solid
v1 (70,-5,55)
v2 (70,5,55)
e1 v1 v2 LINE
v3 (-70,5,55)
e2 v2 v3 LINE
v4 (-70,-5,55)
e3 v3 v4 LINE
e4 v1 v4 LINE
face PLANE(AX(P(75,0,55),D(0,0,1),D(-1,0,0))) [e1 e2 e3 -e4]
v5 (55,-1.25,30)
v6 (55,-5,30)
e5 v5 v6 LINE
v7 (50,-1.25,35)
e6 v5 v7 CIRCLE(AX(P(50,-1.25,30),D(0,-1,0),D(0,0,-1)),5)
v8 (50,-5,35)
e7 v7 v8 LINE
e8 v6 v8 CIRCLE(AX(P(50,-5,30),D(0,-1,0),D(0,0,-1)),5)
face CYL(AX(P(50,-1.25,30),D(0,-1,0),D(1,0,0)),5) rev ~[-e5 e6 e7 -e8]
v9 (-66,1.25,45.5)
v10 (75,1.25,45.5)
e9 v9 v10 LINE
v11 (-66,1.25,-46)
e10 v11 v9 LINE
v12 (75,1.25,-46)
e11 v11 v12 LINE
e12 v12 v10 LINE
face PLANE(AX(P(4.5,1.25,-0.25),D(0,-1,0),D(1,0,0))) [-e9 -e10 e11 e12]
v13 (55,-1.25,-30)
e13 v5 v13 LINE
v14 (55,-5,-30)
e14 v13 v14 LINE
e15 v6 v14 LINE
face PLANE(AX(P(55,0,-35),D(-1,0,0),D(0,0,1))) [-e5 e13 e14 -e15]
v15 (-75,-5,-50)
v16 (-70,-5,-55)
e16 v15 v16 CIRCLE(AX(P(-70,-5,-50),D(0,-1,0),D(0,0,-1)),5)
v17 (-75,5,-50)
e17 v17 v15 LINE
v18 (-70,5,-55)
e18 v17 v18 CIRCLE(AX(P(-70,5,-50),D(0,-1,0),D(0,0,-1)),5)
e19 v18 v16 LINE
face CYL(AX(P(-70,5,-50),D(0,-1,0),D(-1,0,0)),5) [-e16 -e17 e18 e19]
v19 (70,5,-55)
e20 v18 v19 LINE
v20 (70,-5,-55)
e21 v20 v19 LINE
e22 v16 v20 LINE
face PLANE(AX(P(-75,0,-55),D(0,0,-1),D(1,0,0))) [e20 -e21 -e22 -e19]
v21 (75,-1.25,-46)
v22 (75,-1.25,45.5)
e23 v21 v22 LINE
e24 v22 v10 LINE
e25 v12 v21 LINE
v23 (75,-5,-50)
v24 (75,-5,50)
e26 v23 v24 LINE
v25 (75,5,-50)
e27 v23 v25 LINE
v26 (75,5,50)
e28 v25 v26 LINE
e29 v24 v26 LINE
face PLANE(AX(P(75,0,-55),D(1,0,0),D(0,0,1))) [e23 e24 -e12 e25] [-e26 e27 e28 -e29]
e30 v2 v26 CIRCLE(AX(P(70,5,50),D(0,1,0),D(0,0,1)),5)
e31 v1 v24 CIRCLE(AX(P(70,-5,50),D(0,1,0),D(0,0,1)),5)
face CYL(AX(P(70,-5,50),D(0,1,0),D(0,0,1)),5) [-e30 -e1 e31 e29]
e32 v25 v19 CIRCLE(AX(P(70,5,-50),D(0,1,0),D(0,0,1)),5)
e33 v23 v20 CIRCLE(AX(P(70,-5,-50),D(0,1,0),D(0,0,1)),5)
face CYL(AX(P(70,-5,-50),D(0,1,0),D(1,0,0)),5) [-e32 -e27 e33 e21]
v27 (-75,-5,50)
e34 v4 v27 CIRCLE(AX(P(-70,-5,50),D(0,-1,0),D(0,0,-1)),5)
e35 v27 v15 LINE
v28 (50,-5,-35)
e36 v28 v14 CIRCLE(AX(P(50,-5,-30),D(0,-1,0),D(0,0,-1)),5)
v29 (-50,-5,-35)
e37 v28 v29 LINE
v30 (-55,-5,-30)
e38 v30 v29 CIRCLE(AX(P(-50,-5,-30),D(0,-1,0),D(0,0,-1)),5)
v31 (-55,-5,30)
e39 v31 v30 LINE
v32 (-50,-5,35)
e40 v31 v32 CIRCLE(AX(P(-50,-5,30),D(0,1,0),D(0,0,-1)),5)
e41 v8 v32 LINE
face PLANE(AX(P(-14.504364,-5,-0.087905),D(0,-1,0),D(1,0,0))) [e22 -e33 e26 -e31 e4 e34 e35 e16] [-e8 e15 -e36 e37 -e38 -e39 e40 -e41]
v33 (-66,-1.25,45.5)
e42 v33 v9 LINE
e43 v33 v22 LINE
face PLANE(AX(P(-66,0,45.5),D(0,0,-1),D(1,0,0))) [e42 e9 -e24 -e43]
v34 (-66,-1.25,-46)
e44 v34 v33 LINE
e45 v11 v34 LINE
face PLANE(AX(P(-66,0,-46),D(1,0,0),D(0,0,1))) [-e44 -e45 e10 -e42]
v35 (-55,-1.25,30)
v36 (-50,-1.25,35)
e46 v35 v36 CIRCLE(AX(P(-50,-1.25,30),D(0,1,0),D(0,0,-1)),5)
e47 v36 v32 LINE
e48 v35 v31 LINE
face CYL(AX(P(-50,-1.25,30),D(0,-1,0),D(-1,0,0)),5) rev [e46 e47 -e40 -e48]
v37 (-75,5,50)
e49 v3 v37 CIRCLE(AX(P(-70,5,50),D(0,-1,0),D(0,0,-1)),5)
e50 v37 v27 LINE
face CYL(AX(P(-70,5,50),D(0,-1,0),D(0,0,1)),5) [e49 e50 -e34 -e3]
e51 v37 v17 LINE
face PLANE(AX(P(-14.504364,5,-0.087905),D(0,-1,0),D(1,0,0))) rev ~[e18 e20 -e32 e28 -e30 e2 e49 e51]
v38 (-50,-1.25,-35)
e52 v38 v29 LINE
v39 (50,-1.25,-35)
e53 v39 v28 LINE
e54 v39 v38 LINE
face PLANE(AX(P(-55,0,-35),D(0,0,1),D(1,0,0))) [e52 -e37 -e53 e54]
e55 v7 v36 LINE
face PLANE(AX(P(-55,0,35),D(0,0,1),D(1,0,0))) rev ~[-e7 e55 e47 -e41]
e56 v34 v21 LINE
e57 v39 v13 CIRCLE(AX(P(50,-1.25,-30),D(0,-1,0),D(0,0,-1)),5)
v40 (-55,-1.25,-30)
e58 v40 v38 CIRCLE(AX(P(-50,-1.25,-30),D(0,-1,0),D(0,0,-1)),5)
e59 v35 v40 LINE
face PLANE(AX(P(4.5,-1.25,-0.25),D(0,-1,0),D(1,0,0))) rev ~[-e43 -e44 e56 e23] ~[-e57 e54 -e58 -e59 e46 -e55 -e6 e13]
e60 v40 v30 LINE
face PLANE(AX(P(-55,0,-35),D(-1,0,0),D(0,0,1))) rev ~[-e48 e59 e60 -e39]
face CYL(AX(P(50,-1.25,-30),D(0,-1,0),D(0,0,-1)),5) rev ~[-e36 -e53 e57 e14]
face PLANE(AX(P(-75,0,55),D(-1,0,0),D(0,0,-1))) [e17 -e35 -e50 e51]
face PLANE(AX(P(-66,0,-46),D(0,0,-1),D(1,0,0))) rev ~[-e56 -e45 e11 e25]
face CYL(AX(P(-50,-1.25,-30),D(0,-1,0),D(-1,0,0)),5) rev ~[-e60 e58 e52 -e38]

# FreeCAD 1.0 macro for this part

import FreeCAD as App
import Part
import Sketcher


def edges_at(feature, points):
    """Names of the edges that pass closest to the given points."""
    edges = feature.Shape.Edges
    near = lambda p: min(range(len(edges)), key=lambda i: edges[i].distToShape(Part.Vertex(*p))[0])
    return sorted({f"Edge{near(p) + 1}" for p in points})

doc = App.newDocument("Part")
params = doc.addObject("Spreadsheet::Sheet", "Params")
for row, (alias, value) in enumerate([
    ("sketch1_width", "150 mm"),
    ("sketch1_height", "110 mm"),
    ("pad1_length", "10 mm"),
    ("sketch2_width", "141 mm"),
    ("sketch2_height", "91.5 mm"),
    ("pocket1_length", "2.5 mm"),
    ("sketch3_width", "110 mm"),
    ("sketch3_height", "70 mm"),
    ("fillet_radius", "5 mm"),
    ("fillet2_radius", "5 mm"),
], start=1):
    params.set(f"A{row}", alias)
    params.set(f"B{row}", "=" + value)
    params.setAlias(f"B{row}", alias)

body = doc.addObject("PartDesign::Body", "Body")

# Sketch on XZ plane
sketch1 = body.newObject("Sketcher::SketchObject", "Sketch")
sketch1.AttachmentSupport = (doc.getObject("XZ_Plane"), [""])
sketch1.MapMode = "FlatFace"
sketch1.addGeometry(Part.LineSegment(App.Vector(75, 55, 0), App.Vector(-75, 55, 0)), False)
sketch1.addGeometry(Part.LineSegment(App.Vector(-75, 55, 0), App.Vector(-75, -55, 0)), False)
sketch1.addGeometry(Part.LineSegment(App.Vector(-75, -55, 0), App.Vector(75, -55, 0)), False)
sketch1.addGeometry(Part.LineSegment(App.Vector(75, -55, 0), App.Vector(75, 55, 0)), False)
sketch1.addConstraint(Sketcher.Constraint("Coincident", 0, 2, 1, 1))
sketch1.addConstraint(Sketcher.Constraint("Coincident", 1, 2, 2, 1))
sketch1.addConstraint(Sketcher.Constraint("Coincident", 2, 2, 3, 1))
sketch1.addConstraint(Sketcher.Constraint("Coincident", 3, 2, 0, 1))
sketch1.addConstraint(Sketcher.Constraint("Horizontal", 0))
sketch1.addConstraint(Sketcher.Constraint("Vertical", 1))
sketch1.addConstraint(Sketcher.Constraint("Horizontal", 2))
sketch1.addConstraint(Sketcher.Constraint("Vertical", 3))
sketch1.addConstraint(Sketcher.Constraint("Symmetric", 0, 2, 2, 2, -1, 1))
sketch1.addConstraint(Sketcher.Constraint("DistanceX", 0, 2, 0, 1, 150.0))
sketch1.addConstraint(Sketcher.Constraint("DistanceY", 1, 2, 1, 1, 110.0))
sketch1.setExpression("Constraints[9]", "Params.sketch1_width")
sketch1.setExpression("Constraints[10]", "Params.sketch1_height")
pad1 = body.newObject("PartDesign::Pad", "Pad")
pad1.Profile = sketch1
pad1.setExpression("Length", "Params.pad1_length")
pad1.Midplane = True

# Sketch on XZ plane
sketch2 = body.newObject("Sketcher::SketchObject", "Sketch001")
sketch2.AttachmentSupport = (doc.getObject("XZ_Plane"), [""])
sketch2.MapMode = "FlatFace"
sketch2.addGeometry(Part.LineSegment(App.Vector(-66, 46, 0), App.Vector(-66, -46, 0)), False)
sketch2.addGeometry(Part.LineSegment(App.Vector(-66, -46, 0), App.Vector(75, -46, 0)), False)
sketch2.addGeometry(Part.LineSegment(App.Vector(75, -46, 0), App.Vector(75, 46, 0)), False)
sketch2.addGeometry(Part.LineSegment(App.Vector(75, 46, 0), App.Vector(-66, 46, 0)), False)
sketch2.addConstraint(Sketcher.Constraint("Coincident", 0, 2, 1, 1))
sketch2.addConstraint(Sketcher.Constraint("Coincident", 1, 2, 2, 1))
sketch2.addConstraint(Sketcher.Constraint("Coincident", 2, 2, 3, 1))
sketch2.addConstraint(Sketcher.Constraint("Coincident", 3, 2, 0, 1))
sketch2.addConstraint(Sketcher.Constraint("Vertical", 0))
sketch2.addConstraint(Sketcher.Constraint("Horizontal", 1))
sketch2.addConstraint(Sketcher.Constraint("Vertical", 2))
sketch2.addConstraint(Sketcher.Constraint("Horizontal", 3))
sketch2.addConstraint(Sketcher.Constraint("DistanceX", 1, 1, 1, 2, 141.0))
sketch2.addConstraint(Sketcher.Constraint("DistanceY", 0, 2, 0, 1, 91.5))
sketch2.addConstraint(Sketcher.Constraint("DistanceX", 0, 2, -1, 1, 66.0))
sketch2.addConstraint(Sketcher.Constraint("DistanceY", 0, 2, -1, 1, 46.0))
sketch2.setExpression("Constraints[8]", "Params.sketch2_width")
sketch2.setExpression("Constraints[9]", "Params.sketch2_height")
pocket1 = body.newObject("PartDesign::Pocket", "Pocket")
pocket1.Profile = sketch2
pocket1.setExpression("Length", "Params.pocket1_length")
pocket1.Midplane = True

# Sketch on XZ plane
sketch3 = body.newObject("Sketcher::SketchObject", "Sketch002")
sketch3.AttachmentSupport = (doc.getObject("XZ_Plane"), [""])
sketch3.MapMode = "FlatFace"
sketch3.addGeometry(Part.LineSegment(App.Vector(-55, 35, 0), App.Vector(-55, -35, 0)), False)
sketch3.addGeometry(Part.LineSegment(App.Vector(-55, -35, 0), App.Vector(55, -35, 0)), False)
sketch3.addGeometry(Part.LineSegment(App.Vector(55, -35, 0), App.Vector(55, 35, 0)), False)
sketch3.addGeometry(Part.LineSegment(App.Vector(55, 35, 0), App.Vector(-55, 35, 0)), False)
sketch3.addConstraint(Sketcher.Constraint("Coincident", 0, 2, 1, 1))
sketch3.addConstraint(Sketcher.Constraint("Coincident", 1, 2, 2, 1))
sketch3.addConstraint(Sketcher.Constraint("Coincident", 2, 2, 3, 1))
sketch3.addConstraint(Sketcher.Constraint("Coincident", 3, 2, 0, 1))
sketch3.addConstraint(Sketcher.Constraint("Vertical", 0))
sketch3.addConstraint(Sketcher.Constraint("Horizontal", 1))
sketch3.addConstraint(Sketcher.Constraint("Vertical", 2))
sketch3.addConstraint(Sketcher.Constraint("Horizontal", 3))
sketch3.addConstraint(Sketcher.Constraint("Symmetric", 0, 2, 2, 2, -1, 1))
sketch3.addConstraint(Sketcher.Constraint("DistanceX", 1, 1, 1, 2, 110.0))
sketch3.addConstraint(Sketcher.Constraint("DistanceY", 0, 2, 0, 1, 70.0))
sketch3.setExpression("Constraints[9]", "Params.sketch3_width")
sketch3.setExpression("Constraints[10]", "Params.sketch3_height")
pocket2 = body.newObject("PartDesign::Pocket", "Pocket001")
pocket2.Profile = sketch3
pocket2.Type = "ThroughAll"
pocket2.Reversed = True
doc.recompute()

fillet = body.newObject("PartDesign::Fillet", "Fillet")
fillet.Base = (pocket2, edges_at(pocket2, [
    (-75, 0, 55),
    (75, 0, 55),
    (75, 0, -55),
    (-75, 0, -55),
]))
fillet.setExpression("Radius", "Params.fillet_radius")
doc.recompute()

fillet2 = body.newObject("PartDesign::Fillet", "Fillet001")
fillet2.Base = (fillet, edges_at(fillet, [
    (-55, -3.125, 35),
    (55, -3.125, 35),
    (55, -3.125, -35),
    (-55, -3.125, -35),
]))
fillet2.setExpression("Radius", "Params.fillet2_radius")

doc.recompute()
